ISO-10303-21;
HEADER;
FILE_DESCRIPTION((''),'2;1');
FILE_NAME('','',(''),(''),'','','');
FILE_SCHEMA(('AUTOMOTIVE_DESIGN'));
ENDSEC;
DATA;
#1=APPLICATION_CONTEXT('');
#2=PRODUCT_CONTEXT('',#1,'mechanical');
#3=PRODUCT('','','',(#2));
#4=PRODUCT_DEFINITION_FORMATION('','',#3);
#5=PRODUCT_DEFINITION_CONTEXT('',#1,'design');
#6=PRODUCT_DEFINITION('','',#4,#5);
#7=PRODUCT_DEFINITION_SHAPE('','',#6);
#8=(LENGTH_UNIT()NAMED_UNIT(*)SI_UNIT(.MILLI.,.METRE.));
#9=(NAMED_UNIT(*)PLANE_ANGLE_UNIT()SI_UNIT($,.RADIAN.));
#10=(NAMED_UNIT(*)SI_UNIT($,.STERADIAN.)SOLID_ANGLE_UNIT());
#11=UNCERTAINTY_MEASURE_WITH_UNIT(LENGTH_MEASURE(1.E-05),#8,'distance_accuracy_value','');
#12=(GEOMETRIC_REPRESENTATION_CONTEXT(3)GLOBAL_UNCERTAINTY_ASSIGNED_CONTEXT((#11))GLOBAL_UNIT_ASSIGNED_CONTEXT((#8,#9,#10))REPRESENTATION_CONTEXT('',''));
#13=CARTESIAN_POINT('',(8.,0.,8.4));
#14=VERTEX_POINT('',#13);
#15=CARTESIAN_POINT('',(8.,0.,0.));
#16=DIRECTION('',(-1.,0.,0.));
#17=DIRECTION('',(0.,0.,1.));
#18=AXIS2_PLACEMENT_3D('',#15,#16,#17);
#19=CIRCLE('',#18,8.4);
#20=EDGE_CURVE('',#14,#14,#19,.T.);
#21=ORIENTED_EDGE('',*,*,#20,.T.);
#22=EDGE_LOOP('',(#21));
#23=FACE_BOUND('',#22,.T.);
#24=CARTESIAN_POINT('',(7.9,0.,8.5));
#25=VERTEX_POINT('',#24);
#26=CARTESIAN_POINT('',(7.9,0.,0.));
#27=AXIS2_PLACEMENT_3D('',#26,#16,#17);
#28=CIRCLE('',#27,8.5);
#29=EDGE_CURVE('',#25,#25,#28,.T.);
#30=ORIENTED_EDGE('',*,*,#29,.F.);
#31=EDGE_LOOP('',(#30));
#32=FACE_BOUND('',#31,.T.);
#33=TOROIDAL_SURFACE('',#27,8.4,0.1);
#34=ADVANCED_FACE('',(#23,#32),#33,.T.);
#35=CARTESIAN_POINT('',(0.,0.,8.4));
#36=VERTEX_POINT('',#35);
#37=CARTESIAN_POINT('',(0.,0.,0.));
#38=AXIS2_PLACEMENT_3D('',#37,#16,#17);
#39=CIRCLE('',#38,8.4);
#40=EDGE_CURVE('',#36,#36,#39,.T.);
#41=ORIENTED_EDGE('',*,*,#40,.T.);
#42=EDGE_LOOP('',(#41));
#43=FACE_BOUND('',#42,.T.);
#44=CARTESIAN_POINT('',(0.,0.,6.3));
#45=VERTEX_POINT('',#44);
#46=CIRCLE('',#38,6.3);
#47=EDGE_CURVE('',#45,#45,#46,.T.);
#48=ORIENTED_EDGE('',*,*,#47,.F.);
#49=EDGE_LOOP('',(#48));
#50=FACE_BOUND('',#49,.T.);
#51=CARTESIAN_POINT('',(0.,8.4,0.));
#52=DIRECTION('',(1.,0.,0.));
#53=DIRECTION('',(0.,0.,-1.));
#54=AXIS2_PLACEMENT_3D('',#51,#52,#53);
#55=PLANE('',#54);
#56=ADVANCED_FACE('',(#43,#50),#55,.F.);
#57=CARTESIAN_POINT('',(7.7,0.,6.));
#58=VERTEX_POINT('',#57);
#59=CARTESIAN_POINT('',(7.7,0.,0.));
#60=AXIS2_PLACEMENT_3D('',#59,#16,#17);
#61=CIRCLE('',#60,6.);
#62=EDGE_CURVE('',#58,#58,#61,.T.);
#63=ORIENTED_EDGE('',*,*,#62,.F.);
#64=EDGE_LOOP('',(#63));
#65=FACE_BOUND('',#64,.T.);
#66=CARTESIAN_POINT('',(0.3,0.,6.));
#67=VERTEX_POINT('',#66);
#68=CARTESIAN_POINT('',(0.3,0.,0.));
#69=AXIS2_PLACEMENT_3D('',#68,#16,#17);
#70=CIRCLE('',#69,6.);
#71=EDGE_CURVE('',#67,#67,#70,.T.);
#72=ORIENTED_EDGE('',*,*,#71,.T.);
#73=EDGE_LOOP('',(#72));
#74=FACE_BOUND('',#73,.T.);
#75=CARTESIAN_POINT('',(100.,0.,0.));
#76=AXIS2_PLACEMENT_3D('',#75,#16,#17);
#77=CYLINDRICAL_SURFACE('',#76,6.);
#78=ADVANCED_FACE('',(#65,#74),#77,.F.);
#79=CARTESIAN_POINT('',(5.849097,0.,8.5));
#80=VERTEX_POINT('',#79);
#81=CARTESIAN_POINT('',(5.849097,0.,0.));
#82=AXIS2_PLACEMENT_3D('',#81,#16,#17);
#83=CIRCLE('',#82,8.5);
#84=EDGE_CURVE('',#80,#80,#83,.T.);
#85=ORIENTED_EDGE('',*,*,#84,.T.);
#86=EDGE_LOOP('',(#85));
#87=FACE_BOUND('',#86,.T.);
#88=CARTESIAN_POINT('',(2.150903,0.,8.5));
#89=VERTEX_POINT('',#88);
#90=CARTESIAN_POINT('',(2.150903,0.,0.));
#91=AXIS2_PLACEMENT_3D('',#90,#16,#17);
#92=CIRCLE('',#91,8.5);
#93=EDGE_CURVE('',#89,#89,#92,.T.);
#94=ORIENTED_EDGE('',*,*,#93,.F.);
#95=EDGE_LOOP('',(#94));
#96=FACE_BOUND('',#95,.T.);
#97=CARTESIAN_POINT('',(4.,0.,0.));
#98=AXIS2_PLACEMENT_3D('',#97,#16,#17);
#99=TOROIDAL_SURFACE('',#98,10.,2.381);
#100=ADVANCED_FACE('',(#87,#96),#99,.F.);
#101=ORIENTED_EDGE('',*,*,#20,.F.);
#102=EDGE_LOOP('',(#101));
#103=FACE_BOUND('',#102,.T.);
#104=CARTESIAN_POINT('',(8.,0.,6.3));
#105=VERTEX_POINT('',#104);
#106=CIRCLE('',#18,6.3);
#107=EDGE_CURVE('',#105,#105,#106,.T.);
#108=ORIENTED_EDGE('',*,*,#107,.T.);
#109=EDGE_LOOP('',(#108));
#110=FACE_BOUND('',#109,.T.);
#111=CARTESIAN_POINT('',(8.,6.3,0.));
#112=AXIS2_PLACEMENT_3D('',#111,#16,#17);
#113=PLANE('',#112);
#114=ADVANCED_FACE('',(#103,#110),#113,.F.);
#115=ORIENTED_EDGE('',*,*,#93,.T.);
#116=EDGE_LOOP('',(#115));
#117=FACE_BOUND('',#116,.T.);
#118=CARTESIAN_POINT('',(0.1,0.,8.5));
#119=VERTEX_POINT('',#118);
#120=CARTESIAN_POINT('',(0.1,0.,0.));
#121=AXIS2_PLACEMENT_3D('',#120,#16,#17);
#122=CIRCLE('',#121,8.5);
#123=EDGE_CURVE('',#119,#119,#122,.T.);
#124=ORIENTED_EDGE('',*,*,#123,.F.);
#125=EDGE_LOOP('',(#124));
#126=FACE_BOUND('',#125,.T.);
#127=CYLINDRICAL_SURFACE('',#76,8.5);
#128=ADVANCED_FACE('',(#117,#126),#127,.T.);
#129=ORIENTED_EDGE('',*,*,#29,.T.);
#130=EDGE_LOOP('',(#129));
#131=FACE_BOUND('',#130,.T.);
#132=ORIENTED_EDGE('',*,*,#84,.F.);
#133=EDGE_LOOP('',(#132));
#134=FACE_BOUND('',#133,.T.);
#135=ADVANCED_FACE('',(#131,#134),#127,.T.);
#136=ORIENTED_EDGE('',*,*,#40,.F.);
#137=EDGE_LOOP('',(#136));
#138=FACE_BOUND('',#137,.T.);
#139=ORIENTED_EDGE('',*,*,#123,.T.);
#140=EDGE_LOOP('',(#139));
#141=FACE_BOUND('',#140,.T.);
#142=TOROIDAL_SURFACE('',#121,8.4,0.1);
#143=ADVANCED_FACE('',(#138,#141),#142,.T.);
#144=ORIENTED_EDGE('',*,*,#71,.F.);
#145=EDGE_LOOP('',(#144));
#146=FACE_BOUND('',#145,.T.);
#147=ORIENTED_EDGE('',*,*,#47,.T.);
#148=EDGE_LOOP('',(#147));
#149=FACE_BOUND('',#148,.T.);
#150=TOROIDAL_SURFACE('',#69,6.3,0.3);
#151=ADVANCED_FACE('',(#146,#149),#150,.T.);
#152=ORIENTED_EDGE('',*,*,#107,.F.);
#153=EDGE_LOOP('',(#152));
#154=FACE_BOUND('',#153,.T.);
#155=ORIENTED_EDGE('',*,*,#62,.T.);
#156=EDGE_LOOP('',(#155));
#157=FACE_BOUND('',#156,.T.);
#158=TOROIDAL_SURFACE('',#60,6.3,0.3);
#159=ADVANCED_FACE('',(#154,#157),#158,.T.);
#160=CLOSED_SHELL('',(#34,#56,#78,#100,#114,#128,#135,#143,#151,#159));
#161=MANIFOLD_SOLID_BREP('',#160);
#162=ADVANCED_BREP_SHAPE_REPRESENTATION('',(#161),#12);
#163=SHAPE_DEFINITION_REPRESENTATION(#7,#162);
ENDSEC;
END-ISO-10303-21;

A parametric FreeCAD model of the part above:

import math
import FreeCAD as App
import Part
import Sketcher

V = App.Vector

doc = App.newDocument("Part")
body = doc.addObject("PartDesign::Body", "Body")

# Sketch on XY plane
sketch1 = body.newObject("Sketcher::SketchObject", "Sketch")
sketch1.AttachmentSupport = (doc.getObject("XY_Plane"), [""])
sketch1.MapMode = "FlatFace"
sketch1.addGeometry([
    Part.LineSegment(V(0.3, 6, 0), V(7.7, 6, 0)),  # 0
    Part.ArcOfCircle(Part.Circle(V(7.7, 6.3, 0), V(0, 0, 1), 0.3), math.radians(-90), math.radians(0)),  # 1
    Part.LineSegment(V(8, 6.3, 0), V(8, 8.4, 0)),  # 2
    Part.ArcOfCircle(Part.Circle(V(7.9, 8.4, 0), V(0, 0, 1), 0.1), math.radians(0), math.radians(90)),  # 3
    Part.LineSegment(V(7.9, 8.5, 0), V(5.85, 8.5, 0)),  # 4
    Part.ArcOfCircle(Part.Circle(V(4, 10, 0), V(0, 0, 1), 2.38), math.radians(-141), math.radians(-39)),  # 5
    Part.LineSegment(V(2.15, 8.5, 0), V(0.1, 8.5, 0)),  # 6
    Part.ArcOfCircle(Part.Circle(V(0.1, 8.4, 0), V(0, 0, 1), 0.1), math.radians(90), math.radians(180)),  # 7
    Part.LineSegment(V(0, 8.4, 0), V(0, 6.3, 0)),  # 8
    Part.ArcOfCircle(Part.Circle(V(0.3, 6.3, 0), V(0, 0, 1), 0.3), math.radians(-180), math.radians(-90)),  # 9
], False)
sketch1.addConstraint([
    Sketcher.Constraint("Tangent", 0, 2, 1, 1),
    Sketcher.Constraint("Tangent", 1, 2, 2, 1),
    Sketcher.Constraint("Tangent", 2, 2, 3, 1),
    Sketcher.Constraint("Tangent", 3, 2, 4, 1),
    Sketcher.Constraint("Coincident", 4, 2, 5, 2),
    Sketcher.Constraint("Coincident", 5, 1, 6, 1),
    Sketcher.Constraint("Tangent", 6, 2, 7, 1),
    Sketcher.Constraint("Tangent", 7, 2, 8, 1),
    Sketcher.Constraint("Tangent", 8, 2, 9, 1),
    Sketcher.Constraint("Tangent", 9, 2, 0, 1),
    Sketcher.Constraint("Horizontal", 0),
    Sketcher.Constraint("Vertical", 2),
    Sketcher.Constraint("Horizontal", 4),
    Sketcher.Constraint("Horizontal", 6),
    Sketcher.Constraint("Vertical", 8),
    Sketcher.Constraint("Equal", 3, 7),
    Sketcher.Constraint("Equal", 1, 9),
    Sketcher.Constraint("PointOnObject", 7, 2, -2),
    Sketcher.Constraint("Horizontal", 3, 3, 7, 3),
    Sketcher.Constraint("Equal", 4, 6),
    Sketcher.Constraint("Radius", 1, 0.3),
    Sketcher.Constraint("Radius", 3, 0.1),
    Sketcher.Constraint("DistanceX", 0, 1, 0, 2, 7.4),
    Sketcher.Constraint("DistanceY", 2, 1, 2, 2, 2.1),
    Sketcher.Constraint("DistanceY", -1, 1, 5, 3, 10.0),
    Sketcher.Constraint("DistanceY", -1, 1, 0, 2, 6.0),
    Sketcher.Constraint("Radius", 5, 2.381),
])
revolution = body.newObject("PartDesign::Revolution", "Revolution")
revolution.Profile = sketch1
revolution.ReferenceAxis = (sketch1, ["H_Axis"])
revolution.Angle = 360

doc.recompute()
